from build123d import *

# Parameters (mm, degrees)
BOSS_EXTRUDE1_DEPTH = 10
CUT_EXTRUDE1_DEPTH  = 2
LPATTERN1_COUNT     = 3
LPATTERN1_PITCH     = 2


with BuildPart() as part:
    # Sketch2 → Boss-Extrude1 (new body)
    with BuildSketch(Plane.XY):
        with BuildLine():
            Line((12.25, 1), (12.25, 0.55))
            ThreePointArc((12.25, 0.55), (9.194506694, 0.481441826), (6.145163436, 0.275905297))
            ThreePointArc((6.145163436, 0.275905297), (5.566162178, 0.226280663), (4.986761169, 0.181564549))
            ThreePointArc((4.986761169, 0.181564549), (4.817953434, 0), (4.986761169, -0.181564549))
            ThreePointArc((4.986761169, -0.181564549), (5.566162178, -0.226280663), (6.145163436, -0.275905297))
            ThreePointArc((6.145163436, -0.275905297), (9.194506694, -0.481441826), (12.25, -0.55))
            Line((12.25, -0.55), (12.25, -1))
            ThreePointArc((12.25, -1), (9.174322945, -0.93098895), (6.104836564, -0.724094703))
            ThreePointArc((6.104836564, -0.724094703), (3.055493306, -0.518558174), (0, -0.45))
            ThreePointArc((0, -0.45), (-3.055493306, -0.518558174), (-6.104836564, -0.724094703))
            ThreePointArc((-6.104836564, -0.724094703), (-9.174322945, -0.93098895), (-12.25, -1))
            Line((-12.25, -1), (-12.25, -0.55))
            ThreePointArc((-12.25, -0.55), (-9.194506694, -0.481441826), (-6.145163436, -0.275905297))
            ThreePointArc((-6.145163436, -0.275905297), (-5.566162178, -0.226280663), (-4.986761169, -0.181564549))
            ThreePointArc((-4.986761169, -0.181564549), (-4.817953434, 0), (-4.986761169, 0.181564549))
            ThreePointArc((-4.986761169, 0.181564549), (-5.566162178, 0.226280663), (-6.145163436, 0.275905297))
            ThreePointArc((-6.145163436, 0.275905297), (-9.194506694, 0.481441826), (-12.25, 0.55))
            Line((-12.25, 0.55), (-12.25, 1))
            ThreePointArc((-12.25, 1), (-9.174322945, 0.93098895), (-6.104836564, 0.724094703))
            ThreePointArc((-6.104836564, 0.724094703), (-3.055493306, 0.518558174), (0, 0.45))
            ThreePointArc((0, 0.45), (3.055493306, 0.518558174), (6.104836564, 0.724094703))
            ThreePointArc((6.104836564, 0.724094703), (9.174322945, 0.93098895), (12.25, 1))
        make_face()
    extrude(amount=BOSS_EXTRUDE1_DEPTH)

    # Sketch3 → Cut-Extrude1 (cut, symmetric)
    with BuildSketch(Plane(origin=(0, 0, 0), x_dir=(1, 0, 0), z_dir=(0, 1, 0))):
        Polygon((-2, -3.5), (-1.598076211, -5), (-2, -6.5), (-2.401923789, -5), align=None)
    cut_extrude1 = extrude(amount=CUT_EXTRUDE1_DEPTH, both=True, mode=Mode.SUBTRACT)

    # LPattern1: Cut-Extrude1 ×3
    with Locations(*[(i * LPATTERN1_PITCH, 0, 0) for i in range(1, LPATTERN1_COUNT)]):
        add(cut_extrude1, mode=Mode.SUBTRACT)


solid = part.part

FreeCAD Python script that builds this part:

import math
import FreeCAD as App
import Part
import Sketcher

V = App.Vector
Q = App.Units.Quantity


def add_polygon(sketch, points):
    """Adds a closed chain of lines whose ends are joined by coincident constraints."""
    first, n = sketch.GeometryCount, len(points)
    for a, b in zip(points, points[1:] + points[:1]):
        sketch.addGeometry(Part.LineSegment(App.Vector(*a, 0), App.Vector(*b, 0)), False)
    for i in range(n):
        sketch.addConstraint(Sketcher.Constraint("Coincident", first + i, 2, first + (i + 1) % n, 1))

doc = App.newDocument("Part")
params = doc.addObject("Spreadsheet::Sheet", "Params")
for row, (alias, value) in enumerate([
    ("sketch1_height", "0.45 mm"),
    ("pad1_length", "10 mm"),
    ("pocket1_length", "4 mm"),
    ("linearpattern_pitch", "2 mm"),
], start=1):
    params.set(f"A{row}", alias)
    params.set(f"B{row}", "=" + value)
    params.setAlias(f"B{row}", alias)

body = doc.addObject("PartDesign::Body", "Body")

sketch1 = body.newObject("Sketcher::SketchObject", "Sketch")
sketch1.AttachmentSupport = (doc.getObject("XY_Plane"), [""])
sketch1.MapMode = "FlatFace"
sketch1.addGeometry([
    Part.LineSegment(V(12.25, 0.55, 0), V(12.25, 1, 0)),
    Part.ArcOfCircle(Part.Circle(V(12.25, -67.572727, 0), V(0, 0, 1), 68.572727), math.radians(90), math.radians(95.141474)),
    Part.ArcOfCircle(Part.Circle(V(0, 68.572727, 0), V(0, 0, 1), 68.122727), math.radians(-90), math.radians(-84.858526)),
    Part.ArcOfCircle(Part.Circle(V(0, 68.572727, 0), V(0, 0, 1), 68.122727), math.radians(-95.141474), math.radians(-90)),
    Part.ArcOfCircle(Part.Circle(V(-12.25, -67.572727, 0), V(0, 0, 1), 68.572727), math.radians(84.858526), math.radians(90)),
    Part.LineSegment(V(-12.25, 1, 0), V(-12.25, 0.55, 0)),
    Part.ArcOfCircle(Part.Circle(V(-12.25, -67.572727, 0), V(0, 0, 1), 68.122727), math.radians(84.858526), math.radians(90)),
    Part.ArcOfCircle(Part.Circle(V(0.000001, 68.572744, 0), V(0, 0, 1), 68.572744), math.radians(-95.141474), math.radians(-94.170358)),
    Part.ArcOfCircle(Part.Circle(V(-5, 0, 0), V(0, 0, 1), 0.182047), math.radians(-85.829642), math.radians(85.829642)),
    Part.ArcOfCircle(Part.Circle(V(0.000001, -68.572744, 0), V(0, 0, 1), 68.572744), math.radians(94.170358), math.radians(95.141474)),
    Part.ArcOfCircle(Part.Circle(V(-12.25, 67.572727, 0), V(0, 0, 1), 68.122727), math.radians(-90), math.radians(-84.858526)),
    Part.LineSegment(V(-12.25, -0.55, 0), V(-12.25, -1, 0)),
    Part.ArcOfCircle(Part.Circle(V(-12.25, 67.572727, 0), V(0, 0, 1), 68.572727), math.radians(-90), math.radians(-84.858526)),
    Part.ArcOfCircle(Part.Circle(V(0, -68.572727, 0), V(0, 0, 1), 68.122727), math.radians(90), math.radians(95.141474)),
    Part.ArcOfCircle(Part.Circle(V(0, -68.572727, 0), V(0, 0, 1), 68.122727), math.radians(84.858526), math.radians(90)),
    Part.ArcOfCircle(Part.Circle(V(12.25, 67.572727, 0), V(0, 0, 1), 68.572727), math.radians(-95.141474), math.radians(-90)),
    Part.LineSegment(V(12.25, -1, 0), V(12.25, -0.55, 0)),
    Part.ArcOfCircle(Part.Circle(V(12.25, 67.572727, 0), V(0, 0, 1), 68.122727), math.radians(-95.141474), math.radians(-90)),
    Part.ArcOfCircle(Part.Circle(V(-0.000001, -68.572744, 0), V(0, 0, 1), 68.572744), math.radians(84.858526), math.radians(85.829642)),
    Part.ArcOfCircle(Part.Circle(V(5, 0, 0), V(0, 0, 1), 0.182047), math.radians(94.170358), math.radians(265.829642)),
    Part.ArcOfCircle(Part.Circle(V(-0.000001, 68.572744, 0), V(0, 0, 1), 68.572744), math.radians(-85.829642), math.radians(-84.858526)),
    Part.ArcOfCircle(Part.Circle(V(12.25, -67.572727, 0), V(0, 0, 1), 68.122727), math.radians(90), math.radians(95.141474)),
], False)
sketch1.addConstraint([
    Sketcher.Constraint("Coincident", 0, 2, 1, 1),
    Sketcher.Constraint("Tangent", 1, 2, 2, 2),
    Sketcher.Constraint("Tangent", 2, 1, 3, 2),
    Sketcher.Constraint("Tangent", 3, 1, 4, 1),
    Sketcher.Constraint("Coincident", 4, 2, 5, 1),
    Sketcher.Constraint("Coincident", 5, 2, 6, 2),
    Sketcher.Constraint("Tangent", 6, 1, 7, 1),
    Sketcher.Constraint("Tangent", 7, 2, 8, 2),
    Sketcher.Constraint("Tangent", 8, 1, 9, 1),
    Sketcher.Constraint("Tangent", 9, 2, 10, 2),
    Sketcher.Constraint("Coincident", 10, 1, 11, 1),
    Sketcher.Constraint("Coincident", 11, 2, 12, 1),
    Sketcher.Constraint("Tangent", 12, 2, 13, 2),
    Sketcher.Constraint("Tangent", 13, 1, 14, 2),
    Sketcher.Constraint("Tangent", 14, 1, 15, 1),
    Sketcher.Constraint("Coincident", 15, 2, 16, 1),
    Sketcher.Constraint("Coincident", 16, 2, 17, 2),
    Sketcher.Constraint("Tangent", 17, 1, 18, 1),
    Sketcher.Constraint("Tangent", 18, 2, 19, 2),
    Sketcher.Constraint("Tangent", 19, 1, 20, 1),
    Sketcher.Constraint("Tangent", 20, 2, 21, 2),
    Sketcher.Constraint("Coincident", 21, 1, 0, 1),
    Sketcher.Constraint("Vertical", 0),
    Sketcher.Constraint("Vertical", 5),
    Sketcher.Constraint("Vertical", 11),
    Sketcher.Constraint("Vertical", 16),
    Sketcher.Constraint("Coincident", 6, 3, 4, 3),
    Sketcher.Constraint("Coincident", 12, 3, 10, 3),
    Sketcher.Constraint("Coincident", 17, 3, 15, 3),
    Sketcher.Constraint("Coincident", 18, 3, 9, 3),
    Sketcher.Constraint("Coincident", 20, 3, 7, 3),
    Sketcher.Constraint("Coincident", 21, 3, 1, 3),
    Sketcher.Constraint("Equal", 2, 3),
    Sketcher.Constraint("Equal", 1, 4),
    Sketcher.Constraint("Equal", 3, 6),
    Sketcher.Constraint("Equal", 7, 9),
    Sketcher.Constraint("Equal", 6, 10),
    Sketcher.Constraint("Equal", 4, 12),
    Sketcher.Constraint("Equal", 10, 13),
    Sketcher.Constraint("Equal", 13, 14),
    Sketcher.Constraint("Equal", 12, 15),
    Sketcher.Constraint("Equal", 14, 17),
    Sketcher.Constraint("Equal", 9, 18),
    Sketcher.Constraint("Equal", 8, 19),
    Sketcher.Constraint("Equal", 18, 20),
    Sketcher.Constraint("Equal", 17, 21),
    Sketcher.Constraint("Symmetric", 7, 3, 9, 3, -1, 1),
    Sketcher.Constraint("Symmetric", 0, 2, 11, 2, -1, 1),
    Sketcher.Constraint("Symmetric", 4, 2, 15, 2, -1, 1),
    Sketcher.Constraint("Symmetric", 1, 3, 4, 3, -2),
    Sketcher.Constraint("PointOnObject", 2, 1, -2),
    Sketcher.Constraint("PointOnObject", 13, 1, -2),
    Sketcher.Constraint("Vertical", 21, 3, 0, 2),
    Sketcher.Constraint("Vertical", 12, 3, 4, 2),
    Sketcher.Constraint("DistanceX", 8, 3, -1, 1, 5.0),
    Sketcher.Constraint("DistanceY", -1, 1, 0, 2, 1.0),
    Sketcher.Constraint("DistanceY", 10, 3, 2, 3, 1.0),
    Sketcher.Constraint("DistanceY", 0, 1, 0, 2, 0.45),
    Sketcher.Constraint("DistanceX", 4, 3, 1, 3, 24.5),
    Sketcher.Constraint("Radius", 7, 68.572744),
])
sketch1.setExpression("Constraints[57]", "Params.sketch1_height")
pad1 = body.newObject("PartDesign::Pad", "Pad")
pad1.Profile = sketch1
pad1.setExpression("Length", "Params.pad1_length")

sketch2 = body.newObject("Sketcher::SketchObject", "Sketch001")
sketch2.AttachmentSupport = (doc.getObject("XZ_Plane"), [""])
sketch2.MapMode = "FlatFace"
add_polygon(sketch2, [(-1.598076, 5), (-2, 3.5), (-2.401924, 5), (-2, 6.5)])
sketch2.addConstraint([
    Sketcher.Constraint("Parallel", 0, 2),
    Sketcher.Constraint("Parallel", 1, 3),
    Sketcher.Constraint("Horizontal", 1, 2, 3, 2),
    Sketcher.Constraint("Vertical", 0, 2, 2, 2),
    Sketcher.Constraint("Angle", 0, Q("-105 deg")),
    Sketcher.Constraint("DistanceX", 0, 2, -1, 1, 2.0),
    Sketcher.Constraint("DistanceY", -1, 1, 1, 2, 5.0),
    Sketcher.Constraint("DistanceY", 0, 2, 2, 2, 3.0),
])
pocket1 = body.newObject("PartDesign::Pocket", "Pocket")
pocket1.Profile = sketch2
pocket1.setExpression("Length", "Params.pocket1_length")
pocket1.Midplane = True
doc.recompute()

linearpattern = body.newObject("PartDesign::LinearPattern", "LinearPattern")
linearpattern.Originals = [pocket1]
linearpattern.Direction = (doc.getObject("X_Axis"), [""])
linearpattern.Mode = "offset"
linearpattern.setExpression("Offset", "Params.linearpattern_pitch")
linearpattern.Occurrences = 3
body.Tip = linearpattern

doc.recompute()
